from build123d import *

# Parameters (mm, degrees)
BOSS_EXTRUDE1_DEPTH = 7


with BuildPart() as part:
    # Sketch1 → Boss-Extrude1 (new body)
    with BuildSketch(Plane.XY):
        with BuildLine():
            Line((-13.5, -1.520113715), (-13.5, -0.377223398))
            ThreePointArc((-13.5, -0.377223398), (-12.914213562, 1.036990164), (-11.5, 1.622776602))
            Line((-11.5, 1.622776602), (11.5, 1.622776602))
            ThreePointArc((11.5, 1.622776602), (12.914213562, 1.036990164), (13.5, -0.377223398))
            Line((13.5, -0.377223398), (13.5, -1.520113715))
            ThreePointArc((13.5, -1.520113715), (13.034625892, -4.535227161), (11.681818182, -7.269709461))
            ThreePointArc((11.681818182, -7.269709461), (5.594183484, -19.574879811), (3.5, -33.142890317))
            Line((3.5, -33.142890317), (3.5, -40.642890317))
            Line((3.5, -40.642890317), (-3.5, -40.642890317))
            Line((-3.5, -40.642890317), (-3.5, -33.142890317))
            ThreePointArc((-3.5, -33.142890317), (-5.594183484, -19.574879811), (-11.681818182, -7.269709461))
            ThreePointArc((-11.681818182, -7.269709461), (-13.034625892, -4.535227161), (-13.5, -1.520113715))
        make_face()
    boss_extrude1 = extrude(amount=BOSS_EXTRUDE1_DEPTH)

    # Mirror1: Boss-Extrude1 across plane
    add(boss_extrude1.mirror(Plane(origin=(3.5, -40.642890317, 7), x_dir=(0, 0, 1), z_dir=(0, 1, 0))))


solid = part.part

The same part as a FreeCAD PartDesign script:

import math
import FreeCAD as App
import Part
import Sketcher
Q = App.Units.Quantity

doc = App.newDocument("Part")
body = doc.addObject("PartDesign::Body", "Body")

# Sketch on XY plane
sketch1 = doc.addObject("Sketcher::SketchObject", "Sketch")
body.addObject(sketch1)
sketch1.AttachmentSupport = (doc.XY_Plane, [""])
sketch1.MapMode = "FlatFace"
sketch1.addGeometry([
    Part.LineSegment(App.Vector(-13.5, -0.4, 0), App.Vector(-13.5, -1.5, 0)),  # 0
    Part.ArcOfCircle(Part.Circle(App.Vector(-3.5, -1.5, 0), App.Vector(0, 0, 1), 10), math.radians(-180), math.radians(-145)),  # 1
    Part.ArcOfCircle(Part.Circle(App.Vector(-48.5, -33.1, 0), App.Vector(0, 0, 1), 45), math.radians(0), math.radians(35)),  # 2
    Part.LineSegment(App.Vector(-3.5, -33.1, 0), App.Vector(-3.5, -40.6, 0)),  # 3
    Part.LineSegment(App.Vector(-3.5, -40.6, 0), App.Vector(3.5, -40.6, 0)),  # 4
    Part.LineSegment(App.Vector(3.5, -40.6, 0), App.Vector(3.5, -33.1, 0)),  # 5
    Part.ArcOfCircle(Part.Circle(App.Vector(48.5, -33.1, 0), App.Vector(0, 0, 1), 45), math.radians(145), math.radians(180)),  # 6
    Part.ArcOfCircle(Part.Circle(App.Vector(3.5, -1.5, 0), App.Vector(0, 0, 1), 10), math.radians(-35), math.radians(0)),  # 7
    Part.LineSegment(App.Vector(13.5, -1.5, 0), App.Vector(13.5, -0.4, 0)),  # 8
    Part.ArcOfCircle(Part.Circle(App.Vector(11.5, -0.4, 0), App.Vector(0, 0, 1), 2), math.radians(0), math.radians(90)),  # 9
    Part.LineSegment(App.Vector(11.5, 1.6, 0), App.Vector(-11.5, 1.6, 0)),  # 10
    Part.ArcOfCircle(Part.Circle(App.Vector(-11.5, -0.4, 0), App.Vector(0, 0, 1), 2), math.radians(90), math.radians(180)),  # 11
], False)
sketch1.addConstraint([
    Sketcher.Constraint("Tangent", 0, 2, 1, 1),
    Sketcher.Constraint("Tangent", 1, 2, 2, 2),
    Sketcher.Constraint("Tangent", 2, 1, 3, 1),
    Sketcher.Constraint("Coincident", 3, 2, 4, 1),
    Sketcher.Constraint("Coincident", 4, 2, 5, 1),
    Sketcher.Constraint("Tangent", 5, 2, 6, 2),
    Sketcher.Constraint("Tangent", 6, 1, 7, 1),
    Sketcher.Constraint("Tangent", 7, 2, 8, 1),
    Sketcher.Constraint("Tangent", 8, 2, 9, 1),
    Sketcher.Constraint("Tangent", 9, 2, 10, 1),
    Sketcher.Constraint("Tangent", 10, 2, 11, 1),
    Sketcher.Constraint("Tangent", 11, 2, 0, 1),
    Sketcher.Constraint("Vertical", 0),
    Sketcher.Constraint("Vertical", 3),
    Sketcher.Constraint("Horizontal", 4),
    Sketcher.Constraint("Vertical", 5),
    Sketcher.Constraint("Vertical", 8),
    Sketcher.Constraint("Horizontal", 10),
    Sketcher.Constraint("Equal", 2, 6),
    Sketcher.Constraint("Equal", 1, 7),
    Sketcher.Constraint("Equal", 9, 11),
    Sketcher.Constraint("Symmetric", 2, 3, 6, 3, -2),
    Sketcher.Constraint("Horizontal", 1, 3, 7, 3),
    Sketcher.Constraint("Vertical", 1, 3, 2, 1),
    Sketcher.Constraint("Radius", 1, Q("10 mm")),
    Sketcher.Constraint("Radius", 2, Q("45 mm")),
    Sketcher.Constraint("Radius", 9, Q("2 mm")),
    Sketcher.Constraint("DistanceX", 4, 1, 4, 2, Q("7 mm")),
    Sketcher.Constraint("DistanceY", 3, 2, 3, 1, Q("7.5 mm")),
    Sketcher.Constraint("DistanceY", 0, 2, 0, 1, Q("1.14289 mm")),
    Sketcher.Constraint("DistanceY", 2, 3, -1, 1, Q("33.14289 mm")),
])
pad1 = doc.addObject("PartDesign::Pad", "Pad")
body.addObject(pad1)
pad1.Profile = sketch1
pad1.Length = 7
doc.recompute()

datumplane = doc.addObject("PartDesign::Plane", "DatumPlane")
body.addObject(datumplane)
datumplane.AttachmentSupport = (doc.XZ_Plane, [""])
datumplane.MapMode = "FlatFace"
datumplane.AttachmentOffset = App.Placement(App.Vector(0, 0, 40.64289), App.Rotation())
mirrored = doc.addObject("PartDesign::Mirrored", "Mirrored")
body.addObject(mirrored)
mirrored.Originals = [pad1]
mirrored.MirrorPlane = (datumplane, [""])
body.Tip = mirrored

doc.recompute()
